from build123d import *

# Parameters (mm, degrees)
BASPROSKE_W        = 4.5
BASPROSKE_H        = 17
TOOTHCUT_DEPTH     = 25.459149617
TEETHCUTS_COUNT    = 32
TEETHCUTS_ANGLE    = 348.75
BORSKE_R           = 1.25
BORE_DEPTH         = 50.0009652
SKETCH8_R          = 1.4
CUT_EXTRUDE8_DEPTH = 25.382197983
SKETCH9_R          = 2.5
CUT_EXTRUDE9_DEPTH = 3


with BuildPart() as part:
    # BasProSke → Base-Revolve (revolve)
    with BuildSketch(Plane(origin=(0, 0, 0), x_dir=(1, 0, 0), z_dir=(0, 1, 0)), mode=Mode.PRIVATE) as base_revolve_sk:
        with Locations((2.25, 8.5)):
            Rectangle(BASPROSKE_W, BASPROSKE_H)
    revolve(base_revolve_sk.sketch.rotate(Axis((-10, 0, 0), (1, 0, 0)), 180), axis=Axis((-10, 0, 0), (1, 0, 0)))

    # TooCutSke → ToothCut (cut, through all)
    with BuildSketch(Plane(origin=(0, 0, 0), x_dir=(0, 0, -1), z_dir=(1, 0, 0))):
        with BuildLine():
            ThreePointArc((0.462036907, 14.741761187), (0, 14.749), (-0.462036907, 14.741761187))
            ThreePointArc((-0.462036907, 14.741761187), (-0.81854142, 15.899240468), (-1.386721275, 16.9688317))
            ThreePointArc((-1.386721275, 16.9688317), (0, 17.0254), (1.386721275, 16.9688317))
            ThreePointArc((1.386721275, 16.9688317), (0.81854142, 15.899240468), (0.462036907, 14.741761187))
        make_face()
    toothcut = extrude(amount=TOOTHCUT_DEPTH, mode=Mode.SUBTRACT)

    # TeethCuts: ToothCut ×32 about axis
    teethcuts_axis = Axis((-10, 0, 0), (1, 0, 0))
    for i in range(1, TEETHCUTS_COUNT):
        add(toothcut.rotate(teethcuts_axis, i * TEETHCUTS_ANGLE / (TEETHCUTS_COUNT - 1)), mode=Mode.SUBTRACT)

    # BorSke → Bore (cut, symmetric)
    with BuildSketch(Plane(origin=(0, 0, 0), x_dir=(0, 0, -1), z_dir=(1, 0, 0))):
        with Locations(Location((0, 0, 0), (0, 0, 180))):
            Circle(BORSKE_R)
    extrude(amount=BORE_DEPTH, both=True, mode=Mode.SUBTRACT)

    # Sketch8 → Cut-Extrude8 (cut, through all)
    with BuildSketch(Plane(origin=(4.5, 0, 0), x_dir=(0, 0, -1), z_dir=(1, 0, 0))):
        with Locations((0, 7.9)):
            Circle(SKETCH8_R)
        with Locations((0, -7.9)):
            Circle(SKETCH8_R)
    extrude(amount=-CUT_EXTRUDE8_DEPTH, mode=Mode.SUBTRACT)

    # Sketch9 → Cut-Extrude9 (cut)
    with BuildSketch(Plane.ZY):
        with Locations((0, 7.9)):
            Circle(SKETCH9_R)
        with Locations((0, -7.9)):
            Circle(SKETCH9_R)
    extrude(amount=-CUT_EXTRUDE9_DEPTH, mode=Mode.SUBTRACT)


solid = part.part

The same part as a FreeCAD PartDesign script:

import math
import FreeCAD as App
import Part
import Sketcher
from FreeCAD import Vector
Q = App.Units.Quantity


def add_polygon(sketch, points):
    """Adds a closed chain of lines whose ends are joined by coincident constraints."""
    first, n = sketch.GeometryCount, len(points)
    for a, b in zip(points, points[1:] + points[:1]):
        sketch.addGeometry(Part.LineSegment(App.Vector(*a, 0), App.Vector(*b, 0)), False)
    for i in range(n):
        sketch.addConstraint(Sketcher.Constraint("Coincident", first + i, 2, first + (i + 1) % n, 1))

doc = App.newDocument("Part")
body = doc.addObject("PartDesign::Body", "Body")

sketch1 = doc.addObject("Sketcher::SketchObject", "Sketch")
body.addObject(sketch1)
sketch1.AttachmentSupport = (doc.XZ_Plane, [""])
sketch1.MapMode = "FlatFace"
add_polygon(sketch1, [(0, -17), (0, 0), (4.5, 0), (4.5, -17)])
sketch1.addConstraint(Sketcher.Constraint("Vertical", 0))
sketch1.addConstraint(Sketcher.Constraint("Horizontal", 1))
sketch1.addConstraint(Sketcher.Constraint("Vertical", 2))
sketch1.addConstraint(Sketcher.Constraint("Horizontal", 3))
sketch1.addConstraint(Sketcher.Constraint("Coincident", 0, 2, -1, 1))
sketch1.addConstraint(Sketcher.Constraint("DistanceY", 0, 1, 0, 2, Q("17 mm")))
sketch1.addConstraint(Sketcher.Constraint("DistanceX", 1, 1, 1, 2, Q("4.5 mm")))
revolution = doc.addObject("PartDesign::Revolution", "Revolution")
body.addObject(revolution)
revolution.Profile = sketch1
revolution.ReferenceAxis = (sketch1, ["H_Axis"])
revolution.Angle = 360

sketch2 = doc.addObject("Sketcher::SketchObject", "Sketch001")
body.addObject(sketch2)
sketch2.AttachmentSupport = (doc.YZ_Plane, [""])
sketch2.MapMode = "FlatFace"
sketch2.addGeometry(Part.ArcOfCircle(Part.Circle(Vector(0, 0, 0), Vector(0, 0, 1), 14.7), math.radians(-1.8), math.radians(1.8)), False)
sketch2.addGeometry(Part.ArcOfCircle(Part.Circle(Vector(13.4, -6.7, 0), Vector(0, 0, 1), 6.4), math.radians(57), math.radians(78)), False)
sketch2.addGeometry(Part.ArcOfCircle(Part.Circle(Vector(0, 0, 0), Vector(0, 0, 1), 17), math.radians(-4.67), math.radians(4.67)), False)
sketch2.addGeometry(Part.ArcOfCircle(Part.Circle(Vector(13.4, 6.7, 0), Vector(0, 0, 1), 6.4), math.radians(-78), math.radians(-57)), False)
sketch2.addConstraint(Sketcher.Constraint("Coincident", 0, 1, 1, 2))
sketch2.addConstraint(Sketcher.Constraint("Coincident", 1, 1, 2, 1))
sketch2.addConstraint(Sketcher.Constraint("Coincident", 2, 2, 3, 2))
sketch2.addConstraint(Sketcher.Constraint("Coincident", 3, 1, 0, 2))
sketch2.addConstraint(Sketcher.Constraint("Coincident", 0, 3, -1, 1))
sketch2.addConstraint(Sketcher.Constraint("Coincident", 2, 3, -1, 1))
sketch2.addConstraint(Sketcher.Constraint("Equal", 1, 3))
sketch2.addConstraint(Sketcher.Constraint("Symmetric", 1, 3, 3, 3, -1))
sketch2.addConstraint(Sketcher.Constraint("Radius", 1, Q("6.4 mm")))
sketch2.addConstraint(Sketcher.Constraint("Radius", 0, Q("14.749 mm")))
sketch2.addConstraint(Sketcher.Constraint("Radius", 2, Q("17.0254 mm")))
sketch2.addConstraint(Sketcher.Constraint("DistanceX", -1, 1, 1, 3, Q("13.44508 mm")))
sketch2.addConstraint(Sketcher.Constraint("DistanceX", -1, 1, 0, 1, Q("14.741761 mm")))
pocket1 = doc.addObject("PartDesign::Pocket", "Pocket")
body.addObject(pocket1)
pocket1.Profile = sketch2
pocket1.Type = "ThroughAll"
pocket1.Reversed = True
doc.recompute()

polarpattern = doc.addObject("PartDesign::PolarPattern", "PolarPattern")
body.addObject(polarpattern)
polarpattern.Originals = [pocket1]
polarpattern.Axis = (doc.X_Axis, [""])
polarpattern.Angle = 360
polarpattern.Occurrences = 32
body.Tip = polarpattern

sketch3 = doc.addObject("Sketcher::SketchObject", "Sketch002")
body.addObject(sketch3)
sketch3.AttachmentSupport = (doc.YZ_Plane, [""])
sketch3.MapMode = "FlatFace"
sketch3.addGeometry(Part.Circle(Vector(0, 0, 0), Vector(0, 0, 1), 1.2), False)
sketch3.addConstraint(Sketcher.Constraint("Coincident", 0, 3, -1, 1))
sketch3.addConstraint(Sketcher.Constraint("Diameter", 0, Q("2.5 mm")))
pocket2 = doc.addObject("PartDesign::Pocket", "Pocket001")
body.addObject(pocket2)
pocket2.Profile = sketch3
pocket2.Length = 100.00193
pocket2.Midplane = True

sketch4 = doc.addObject("Sketcher::SketchObject", "Sketch003")
body.addObject(sketch4)
sketch4.AttachmentSupport = (doc.YZ_Plane, [""])
sketch4.MapMode = "FlatFace"
sketch4.AttachmentOffset = App.Placement(Vector(0, 0, 4.5), App.Rotation())
sketch4.addGeometry(Part.Circle(Vector(7.9, 0, 0), Vector(0, 0, 1), 1.4), False)
sketch4.addGeometry(Part.Circle(Vector(-7.9, 0, 0), Vector(0, 0, 1), 1.4), False)
sketch4.addConstraint(Sketcher.Constraint("Equal", 0, 1))
sketch4.addConstraint(Sketcher.Constraint("Symmetric", 0, 3, 1, 3, -1, 1))
sketch4.addConstraint(Sketcher.Constraint("PointOnObject", 0, 3, -1))
sketch4.addConstraint(Sketcher.Constraint("Diameter", 0, Q("2.8 mm")))
sketch4.addConstraint(Sketcher.Constraint("DistanceX", -1, 1, 0, 3, Q("7.9 mm")))
pocket3 = doc.addObject("PartDesign::Pocket", "Pocket002")
body.addObject(pocket3)
pocket3.Profile = sketch4
pocket3.Type = "ThroughAll"

sketch5 = doc.addObject("Sketcher::SketchObject", "Sketch004")
body.addObject(sketch5)
sketch5.AttachmentSupport = (doc.YZ_Plane, [""])
sketch5.MapMode = "FlatFace"
sketch5.addGeometry(Part.Circle(Vector(7.9, 0, 0), Vector(0, 0, 1), 2.5), False)
sketch5.addGeometry(Part.Circle(Vector(-7.9, 0, 0), Vector(0, 0, 1), 2.5), False)
sketch5.addConstraint(Sketcher.Constraint("Equal", 0, 1))
sketch5.addConstraint(Sketcher.Constraint("Symmetric", 0, 3, 1, 3, -1, 1))
sketch5.addConstraint(Sketcher.Constraint("PointOnObject", 0, 3, -1))
sketch5.addConstraint(Sketcher.Constraint("Diameter", 0, Q("5 mm")))
sketch5.addConstraint(Sketcher.Constraint("DistanceX", -1, 1, 0, 3, Q("7.9 mm")))
pocket4 = doc.addObject("PartDesign::Pocket", "Pocket003")
body.addObject(pocket4)
pocket4.Profile = sketch5
pocket4.Length = 3
pocket4.Reversed = True

doc.recompute()
